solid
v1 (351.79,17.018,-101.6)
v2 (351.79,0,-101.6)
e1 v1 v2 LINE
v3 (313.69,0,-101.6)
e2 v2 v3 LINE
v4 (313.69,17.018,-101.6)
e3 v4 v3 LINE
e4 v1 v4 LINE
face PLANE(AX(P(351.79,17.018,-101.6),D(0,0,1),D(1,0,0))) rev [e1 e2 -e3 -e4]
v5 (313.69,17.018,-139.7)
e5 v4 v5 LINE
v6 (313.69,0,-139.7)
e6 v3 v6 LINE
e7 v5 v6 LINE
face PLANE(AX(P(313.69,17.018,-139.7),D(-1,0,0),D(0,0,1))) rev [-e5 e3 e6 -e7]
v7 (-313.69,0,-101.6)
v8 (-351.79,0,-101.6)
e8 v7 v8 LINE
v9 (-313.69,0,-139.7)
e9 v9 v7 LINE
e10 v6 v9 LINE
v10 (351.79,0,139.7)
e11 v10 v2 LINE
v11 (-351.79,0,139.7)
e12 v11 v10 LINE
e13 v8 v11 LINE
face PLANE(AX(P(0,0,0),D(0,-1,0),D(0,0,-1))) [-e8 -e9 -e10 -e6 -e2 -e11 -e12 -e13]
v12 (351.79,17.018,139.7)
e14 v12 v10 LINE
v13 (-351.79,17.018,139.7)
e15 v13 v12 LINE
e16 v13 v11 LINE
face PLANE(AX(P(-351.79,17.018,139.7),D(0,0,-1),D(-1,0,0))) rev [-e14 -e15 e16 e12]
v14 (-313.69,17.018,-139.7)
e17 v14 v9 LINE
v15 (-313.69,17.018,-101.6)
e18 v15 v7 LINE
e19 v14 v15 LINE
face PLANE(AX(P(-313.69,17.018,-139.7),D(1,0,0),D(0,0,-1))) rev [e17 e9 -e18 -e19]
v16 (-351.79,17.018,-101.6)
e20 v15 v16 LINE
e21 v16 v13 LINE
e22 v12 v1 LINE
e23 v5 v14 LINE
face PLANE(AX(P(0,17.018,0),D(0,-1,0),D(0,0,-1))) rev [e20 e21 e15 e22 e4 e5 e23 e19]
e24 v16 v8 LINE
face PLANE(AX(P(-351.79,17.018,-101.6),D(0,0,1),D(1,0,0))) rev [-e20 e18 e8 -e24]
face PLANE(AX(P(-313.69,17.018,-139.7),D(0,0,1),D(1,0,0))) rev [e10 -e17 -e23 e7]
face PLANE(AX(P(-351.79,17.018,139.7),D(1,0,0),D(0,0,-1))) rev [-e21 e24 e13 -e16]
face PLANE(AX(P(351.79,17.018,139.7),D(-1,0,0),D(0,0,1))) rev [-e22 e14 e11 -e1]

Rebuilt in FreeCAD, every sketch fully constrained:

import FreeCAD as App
import Part
import Sketcher

V = App.Vector
Q = App.Units.Quantity

doc = App.newDocument("Part")
body = doc.addObject("PartDesign::Body", "Body")

# Sketch on XZ plane
sketch1 = body.newObject("Sketcher::SketchObject", "Sketch")
sketch1.AttachmentSupport = (doc.getObject("XZ_Plane"), [""])
sketch1.MapMode = "FlatFace"
sketch1.addGeometry([
    Part.LineSegment(V(-352, 140, 0), V(352, 140, 0)),  # 0
    Part.LineSegment(V(352, 140, 0), V(352, -102, 0)),  # 1
    Part.LineSegment(V(352, -102, 0), V(314, -102, 0)),  # 2
    Part.LineSegment(V(314, -102, 0), V(314, -140, 0)),  # 3
    Part.LineSegment(V(314, -140, 0), V(-314, -140, 0)),  # 4
    Part.LineSegment(V(-314, -140, 0), V(-314, -102, 0)),  # 5
    Part.LineSegment(V(-314, -102, 0), V(-352, -102, 0)),  # 6
    Part.LineSegment(V(-352, -102, 0), V(-352, 140, 0)),  # 7
], False)
sketch1.addConstraint([
    Sketcher.Constraint("Coincident", 0, 2, 1, 1),
    Sketcher.Constraint("Coincident", 1, 2, 2, 1),
    Sketcher.Constraint("Coincident", 2, 2, 3, 1),
    Sketcher.Constraint("Coincident", 3, 2, 4, 1),
    Sketcher.Constraint("Coincident", 4, 2, 5, 1),
    Sketcher.Constraint("Coincident", 5, 2, 6, 1),
    Sketcher.Constraint("Coincident", 6, 2, 7, 1),
    Sketcher.Constraint("Coincident", 7, 2, 0, 1),
    Sketcher.Constraint("Horizontal", 0),
    Sketcher.Constraint("Vertical", 1),
    Sketcher.Constraint("Horizontal", 2),
    Sketcher.Constraint("Vertical", 3),
    Sketcher.Constraint("Horizontal", 4),
    Sketcher.Constraint("Vertical", 5),
    Sketcher.Constraint("Horizontal", 6),
    Sketcher.Constraint("Vertical", 7),
    Sketcher.Constraint("Symmetric", 2, 2, 5, 2, -2),
    Sketcher.Constraint("Equal", 2, 6),
    Sketcher.Constraint("Equal", 6, 3),
    Sketcher.Constraint("DistanceX", 0, 1, 0, 2, Q("27.7 in")),
    Sketcher.Constraint("DistanceX", 2, 2, 2, 1, Q("1.5 in")),
    Sketcher.Constraint("DistanceY", 1, 2, 1, 1, Q("9.5 in")),
    Sketcher.Constraint("DistanceY", 1, 2, -1, 1, Q("4 in")),
])
pad1 = body.newObject("PartDesign::Pad", "Pad")
pad1.Profile = sketch1
pad1.Length = Q("0.67 in")
pad1.Reversed = True

doc.recompute()
